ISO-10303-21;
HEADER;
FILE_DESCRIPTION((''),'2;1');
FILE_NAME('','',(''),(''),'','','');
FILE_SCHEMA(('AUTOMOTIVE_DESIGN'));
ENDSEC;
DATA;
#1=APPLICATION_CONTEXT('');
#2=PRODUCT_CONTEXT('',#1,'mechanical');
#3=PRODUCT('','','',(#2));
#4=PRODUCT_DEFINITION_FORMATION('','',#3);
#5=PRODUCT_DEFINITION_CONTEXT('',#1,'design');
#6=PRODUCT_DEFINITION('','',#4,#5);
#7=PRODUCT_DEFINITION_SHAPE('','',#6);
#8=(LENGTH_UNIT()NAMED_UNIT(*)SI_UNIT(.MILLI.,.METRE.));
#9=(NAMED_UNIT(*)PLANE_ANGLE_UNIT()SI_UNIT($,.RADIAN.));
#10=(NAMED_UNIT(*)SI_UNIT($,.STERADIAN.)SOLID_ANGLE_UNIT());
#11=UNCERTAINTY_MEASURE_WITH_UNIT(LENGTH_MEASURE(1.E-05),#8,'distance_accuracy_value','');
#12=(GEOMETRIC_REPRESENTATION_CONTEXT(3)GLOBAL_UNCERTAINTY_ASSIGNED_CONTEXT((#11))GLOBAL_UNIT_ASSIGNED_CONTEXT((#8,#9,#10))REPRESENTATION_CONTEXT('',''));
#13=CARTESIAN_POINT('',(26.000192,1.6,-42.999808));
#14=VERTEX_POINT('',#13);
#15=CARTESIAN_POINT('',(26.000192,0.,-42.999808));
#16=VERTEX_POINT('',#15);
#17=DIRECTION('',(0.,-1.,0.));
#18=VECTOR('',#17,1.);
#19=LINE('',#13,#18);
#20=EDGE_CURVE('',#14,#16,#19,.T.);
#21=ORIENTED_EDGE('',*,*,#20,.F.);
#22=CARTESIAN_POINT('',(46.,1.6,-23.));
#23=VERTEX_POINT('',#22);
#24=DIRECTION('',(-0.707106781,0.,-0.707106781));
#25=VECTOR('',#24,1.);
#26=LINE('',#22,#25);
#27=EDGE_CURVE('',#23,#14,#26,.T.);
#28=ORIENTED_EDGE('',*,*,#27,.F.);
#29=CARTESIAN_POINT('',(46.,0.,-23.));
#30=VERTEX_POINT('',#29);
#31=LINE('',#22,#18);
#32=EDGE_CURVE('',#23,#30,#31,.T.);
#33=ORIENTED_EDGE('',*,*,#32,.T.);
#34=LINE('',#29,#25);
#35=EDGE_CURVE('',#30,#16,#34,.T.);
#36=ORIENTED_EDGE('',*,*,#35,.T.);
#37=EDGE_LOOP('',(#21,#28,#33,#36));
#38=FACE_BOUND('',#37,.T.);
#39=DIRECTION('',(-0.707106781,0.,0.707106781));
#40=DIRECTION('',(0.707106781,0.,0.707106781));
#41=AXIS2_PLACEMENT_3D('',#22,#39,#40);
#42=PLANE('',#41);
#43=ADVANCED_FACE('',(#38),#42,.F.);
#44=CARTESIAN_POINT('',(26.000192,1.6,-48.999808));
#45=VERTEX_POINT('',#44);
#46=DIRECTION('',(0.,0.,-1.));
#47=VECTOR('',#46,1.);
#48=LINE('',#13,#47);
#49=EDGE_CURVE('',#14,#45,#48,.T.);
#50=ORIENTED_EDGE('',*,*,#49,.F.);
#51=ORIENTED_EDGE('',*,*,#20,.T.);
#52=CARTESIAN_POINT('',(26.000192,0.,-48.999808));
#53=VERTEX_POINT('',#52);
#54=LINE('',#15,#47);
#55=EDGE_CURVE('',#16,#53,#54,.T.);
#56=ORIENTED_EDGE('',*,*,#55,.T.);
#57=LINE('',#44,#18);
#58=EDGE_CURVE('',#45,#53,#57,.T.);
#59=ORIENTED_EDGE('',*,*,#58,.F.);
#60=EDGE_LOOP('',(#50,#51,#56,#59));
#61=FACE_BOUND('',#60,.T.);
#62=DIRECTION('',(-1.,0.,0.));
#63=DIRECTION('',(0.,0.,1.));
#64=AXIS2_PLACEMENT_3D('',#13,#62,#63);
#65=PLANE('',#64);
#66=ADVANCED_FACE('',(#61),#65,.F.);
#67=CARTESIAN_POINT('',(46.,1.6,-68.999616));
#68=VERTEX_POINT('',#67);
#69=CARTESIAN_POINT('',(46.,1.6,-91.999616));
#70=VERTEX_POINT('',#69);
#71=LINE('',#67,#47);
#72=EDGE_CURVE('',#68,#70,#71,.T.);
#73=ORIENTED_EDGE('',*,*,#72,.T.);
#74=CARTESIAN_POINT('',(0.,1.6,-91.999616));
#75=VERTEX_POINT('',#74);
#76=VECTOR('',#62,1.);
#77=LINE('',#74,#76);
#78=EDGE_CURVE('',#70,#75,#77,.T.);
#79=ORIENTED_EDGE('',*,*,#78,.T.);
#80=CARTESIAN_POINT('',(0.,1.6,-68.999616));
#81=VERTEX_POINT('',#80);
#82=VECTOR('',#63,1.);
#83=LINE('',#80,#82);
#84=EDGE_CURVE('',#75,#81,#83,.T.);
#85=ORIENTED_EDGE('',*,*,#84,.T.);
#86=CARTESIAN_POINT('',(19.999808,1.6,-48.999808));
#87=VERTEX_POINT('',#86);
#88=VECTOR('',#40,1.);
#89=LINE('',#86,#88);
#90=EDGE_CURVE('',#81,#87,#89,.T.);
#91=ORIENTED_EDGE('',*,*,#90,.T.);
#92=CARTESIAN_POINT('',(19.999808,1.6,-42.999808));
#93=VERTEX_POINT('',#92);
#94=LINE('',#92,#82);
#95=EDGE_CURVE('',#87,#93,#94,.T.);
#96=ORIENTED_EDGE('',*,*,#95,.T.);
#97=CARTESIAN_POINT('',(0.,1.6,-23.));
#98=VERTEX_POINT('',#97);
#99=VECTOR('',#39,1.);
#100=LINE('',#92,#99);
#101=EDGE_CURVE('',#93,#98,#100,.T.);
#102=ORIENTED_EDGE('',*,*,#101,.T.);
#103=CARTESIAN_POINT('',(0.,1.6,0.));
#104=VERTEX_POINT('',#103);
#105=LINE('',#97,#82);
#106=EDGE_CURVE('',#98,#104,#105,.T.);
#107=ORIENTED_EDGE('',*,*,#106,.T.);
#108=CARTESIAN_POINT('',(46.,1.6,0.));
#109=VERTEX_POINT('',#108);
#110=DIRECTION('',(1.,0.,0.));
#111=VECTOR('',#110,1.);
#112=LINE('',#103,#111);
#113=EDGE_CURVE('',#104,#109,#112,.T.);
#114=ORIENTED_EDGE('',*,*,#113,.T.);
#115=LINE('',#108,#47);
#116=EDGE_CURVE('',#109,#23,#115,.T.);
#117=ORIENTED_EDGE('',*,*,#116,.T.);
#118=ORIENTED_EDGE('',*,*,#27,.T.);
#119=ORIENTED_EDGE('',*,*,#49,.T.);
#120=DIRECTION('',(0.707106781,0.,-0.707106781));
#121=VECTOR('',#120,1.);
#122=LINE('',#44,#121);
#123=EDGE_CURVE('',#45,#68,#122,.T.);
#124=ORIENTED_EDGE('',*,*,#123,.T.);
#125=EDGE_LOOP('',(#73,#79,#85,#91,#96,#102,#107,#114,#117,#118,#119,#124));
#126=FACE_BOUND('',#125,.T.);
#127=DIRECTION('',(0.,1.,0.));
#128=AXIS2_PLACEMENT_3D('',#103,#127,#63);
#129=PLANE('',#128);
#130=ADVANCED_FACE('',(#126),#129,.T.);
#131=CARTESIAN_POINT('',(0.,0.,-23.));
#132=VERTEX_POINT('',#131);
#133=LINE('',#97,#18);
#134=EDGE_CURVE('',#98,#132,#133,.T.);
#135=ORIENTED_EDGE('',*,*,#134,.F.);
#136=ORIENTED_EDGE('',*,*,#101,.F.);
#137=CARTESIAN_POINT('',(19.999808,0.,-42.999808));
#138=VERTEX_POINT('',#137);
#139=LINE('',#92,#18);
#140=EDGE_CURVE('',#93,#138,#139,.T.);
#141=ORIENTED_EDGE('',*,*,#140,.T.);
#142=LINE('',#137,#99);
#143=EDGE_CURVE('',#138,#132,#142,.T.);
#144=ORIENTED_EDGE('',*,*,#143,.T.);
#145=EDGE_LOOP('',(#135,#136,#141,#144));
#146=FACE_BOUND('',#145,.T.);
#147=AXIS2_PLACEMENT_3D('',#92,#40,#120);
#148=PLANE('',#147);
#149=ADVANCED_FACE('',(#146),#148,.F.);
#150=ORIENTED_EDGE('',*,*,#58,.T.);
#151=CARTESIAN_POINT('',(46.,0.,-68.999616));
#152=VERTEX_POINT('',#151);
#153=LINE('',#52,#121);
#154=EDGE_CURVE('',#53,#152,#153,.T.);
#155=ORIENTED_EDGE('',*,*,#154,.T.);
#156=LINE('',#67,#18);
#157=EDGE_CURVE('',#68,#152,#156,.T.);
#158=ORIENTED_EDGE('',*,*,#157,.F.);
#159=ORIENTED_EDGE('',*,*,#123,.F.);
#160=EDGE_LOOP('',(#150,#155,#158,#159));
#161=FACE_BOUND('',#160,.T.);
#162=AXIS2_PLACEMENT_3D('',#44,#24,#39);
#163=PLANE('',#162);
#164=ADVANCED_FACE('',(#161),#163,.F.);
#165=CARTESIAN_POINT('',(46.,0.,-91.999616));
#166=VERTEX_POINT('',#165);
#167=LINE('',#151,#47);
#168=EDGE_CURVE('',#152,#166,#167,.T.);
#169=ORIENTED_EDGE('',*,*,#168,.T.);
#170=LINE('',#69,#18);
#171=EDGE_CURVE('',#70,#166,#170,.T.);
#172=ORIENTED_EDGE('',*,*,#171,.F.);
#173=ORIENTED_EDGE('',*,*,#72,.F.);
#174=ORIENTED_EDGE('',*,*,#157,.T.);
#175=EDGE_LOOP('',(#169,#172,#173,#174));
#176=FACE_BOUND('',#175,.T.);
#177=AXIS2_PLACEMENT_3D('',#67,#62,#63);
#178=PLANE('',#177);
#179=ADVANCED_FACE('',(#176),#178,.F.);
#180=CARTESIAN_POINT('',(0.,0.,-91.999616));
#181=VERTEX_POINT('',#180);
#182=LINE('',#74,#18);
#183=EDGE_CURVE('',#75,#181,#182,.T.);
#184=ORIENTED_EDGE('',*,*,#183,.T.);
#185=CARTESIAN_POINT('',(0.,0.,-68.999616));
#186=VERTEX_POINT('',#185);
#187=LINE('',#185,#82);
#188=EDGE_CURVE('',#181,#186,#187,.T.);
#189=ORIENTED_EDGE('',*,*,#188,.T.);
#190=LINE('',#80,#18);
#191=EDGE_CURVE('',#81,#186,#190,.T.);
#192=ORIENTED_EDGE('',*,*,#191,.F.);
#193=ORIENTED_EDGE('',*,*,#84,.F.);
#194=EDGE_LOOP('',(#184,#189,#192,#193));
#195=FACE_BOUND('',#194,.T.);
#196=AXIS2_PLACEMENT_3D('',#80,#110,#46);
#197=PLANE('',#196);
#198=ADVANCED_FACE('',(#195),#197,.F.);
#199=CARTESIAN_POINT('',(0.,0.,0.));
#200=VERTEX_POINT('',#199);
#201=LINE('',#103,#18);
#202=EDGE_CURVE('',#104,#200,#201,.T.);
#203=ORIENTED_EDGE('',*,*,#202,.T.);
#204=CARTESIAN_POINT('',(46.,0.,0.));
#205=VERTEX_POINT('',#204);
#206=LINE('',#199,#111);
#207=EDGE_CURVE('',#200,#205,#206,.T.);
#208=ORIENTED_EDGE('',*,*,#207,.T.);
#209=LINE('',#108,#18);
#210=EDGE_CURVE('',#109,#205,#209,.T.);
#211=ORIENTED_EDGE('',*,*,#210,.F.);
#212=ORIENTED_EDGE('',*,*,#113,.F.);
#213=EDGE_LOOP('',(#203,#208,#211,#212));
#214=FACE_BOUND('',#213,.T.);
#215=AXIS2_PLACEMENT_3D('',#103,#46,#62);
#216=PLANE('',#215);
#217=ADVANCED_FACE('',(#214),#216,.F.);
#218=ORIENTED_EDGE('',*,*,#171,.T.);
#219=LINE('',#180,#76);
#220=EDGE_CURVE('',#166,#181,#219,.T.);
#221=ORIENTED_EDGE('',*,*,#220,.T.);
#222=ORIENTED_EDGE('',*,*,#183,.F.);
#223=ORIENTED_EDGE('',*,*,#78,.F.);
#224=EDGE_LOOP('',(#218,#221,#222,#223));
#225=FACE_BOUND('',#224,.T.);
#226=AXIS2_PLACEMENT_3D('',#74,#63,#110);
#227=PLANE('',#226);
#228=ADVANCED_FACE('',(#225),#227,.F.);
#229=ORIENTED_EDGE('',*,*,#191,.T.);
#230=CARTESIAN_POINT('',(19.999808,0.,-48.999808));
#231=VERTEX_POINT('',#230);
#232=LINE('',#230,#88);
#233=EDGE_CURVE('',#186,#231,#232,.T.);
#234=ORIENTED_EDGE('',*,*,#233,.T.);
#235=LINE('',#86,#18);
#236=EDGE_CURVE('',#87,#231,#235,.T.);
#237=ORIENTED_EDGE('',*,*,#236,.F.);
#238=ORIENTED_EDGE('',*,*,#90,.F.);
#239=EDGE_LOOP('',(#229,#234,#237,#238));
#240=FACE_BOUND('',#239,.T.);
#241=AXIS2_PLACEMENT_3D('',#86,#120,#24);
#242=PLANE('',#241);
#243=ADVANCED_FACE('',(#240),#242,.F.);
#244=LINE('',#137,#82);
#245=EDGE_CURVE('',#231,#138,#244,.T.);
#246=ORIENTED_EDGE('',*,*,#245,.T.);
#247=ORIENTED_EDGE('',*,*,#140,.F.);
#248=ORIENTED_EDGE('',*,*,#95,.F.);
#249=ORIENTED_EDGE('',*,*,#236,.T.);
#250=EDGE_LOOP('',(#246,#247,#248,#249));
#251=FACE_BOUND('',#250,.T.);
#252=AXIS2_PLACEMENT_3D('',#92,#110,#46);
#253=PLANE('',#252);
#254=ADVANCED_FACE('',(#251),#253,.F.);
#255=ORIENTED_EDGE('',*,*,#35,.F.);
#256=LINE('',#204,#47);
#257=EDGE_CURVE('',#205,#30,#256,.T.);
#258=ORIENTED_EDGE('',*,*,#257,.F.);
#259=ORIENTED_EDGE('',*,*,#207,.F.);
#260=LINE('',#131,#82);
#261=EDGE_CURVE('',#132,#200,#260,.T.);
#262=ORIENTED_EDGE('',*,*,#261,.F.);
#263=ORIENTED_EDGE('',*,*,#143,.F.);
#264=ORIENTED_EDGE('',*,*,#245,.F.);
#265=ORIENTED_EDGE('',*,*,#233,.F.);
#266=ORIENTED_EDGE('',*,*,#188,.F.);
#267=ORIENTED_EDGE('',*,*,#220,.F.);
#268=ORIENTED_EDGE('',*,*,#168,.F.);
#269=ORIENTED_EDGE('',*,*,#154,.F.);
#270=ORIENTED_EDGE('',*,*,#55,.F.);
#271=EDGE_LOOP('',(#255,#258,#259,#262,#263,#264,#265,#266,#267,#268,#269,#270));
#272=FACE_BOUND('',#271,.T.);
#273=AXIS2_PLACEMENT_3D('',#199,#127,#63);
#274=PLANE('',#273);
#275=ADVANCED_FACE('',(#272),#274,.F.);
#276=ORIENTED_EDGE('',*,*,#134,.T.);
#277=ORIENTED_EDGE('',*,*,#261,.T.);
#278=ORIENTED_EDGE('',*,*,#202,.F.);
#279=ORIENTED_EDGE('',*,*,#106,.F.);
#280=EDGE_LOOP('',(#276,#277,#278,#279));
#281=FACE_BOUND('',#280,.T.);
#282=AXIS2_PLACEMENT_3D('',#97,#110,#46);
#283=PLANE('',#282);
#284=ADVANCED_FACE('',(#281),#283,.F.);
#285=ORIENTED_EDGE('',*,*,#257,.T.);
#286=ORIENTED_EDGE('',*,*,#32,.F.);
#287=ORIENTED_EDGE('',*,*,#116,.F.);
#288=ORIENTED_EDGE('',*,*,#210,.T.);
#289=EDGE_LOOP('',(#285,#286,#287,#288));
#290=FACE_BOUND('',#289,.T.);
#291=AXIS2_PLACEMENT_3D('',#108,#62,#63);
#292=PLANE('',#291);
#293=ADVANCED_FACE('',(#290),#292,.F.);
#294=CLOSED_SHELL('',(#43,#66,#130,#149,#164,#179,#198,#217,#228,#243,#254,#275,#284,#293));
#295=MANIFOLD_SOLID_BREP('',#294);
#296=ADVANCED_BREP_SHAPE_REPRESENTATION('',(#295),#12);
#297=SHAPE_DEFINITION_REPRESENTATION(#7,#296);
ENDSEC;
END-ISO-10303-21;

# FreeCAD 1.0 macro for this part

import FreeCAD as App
import Part
import Sketcher


def add_polygon(sketch, points):
    """Adds a closed chain of lines whose ends are joined by coincident constraints."""
    first, n = sketch.GeometryCount, len(points)
    for a, b in zip(points, points[1:] + points[:1]):
        sketch.addGeometry(Part.LineSegment(App.Vector(*a, 0), App.Vector(*b, 0)), False)
    for i in range(n):
        sketch.addConstraint(Sketcher.Constraint("Coincident", first + i, 2, first + (i + 1) % n, 1))

doc = App.newDocument("Part")
body = doc.addObject("PartDesign::Body", "Body")

sketch1 = body.newObject("Sketcher::SketchObject", "Sketch")
sketch1.AttachmentSupport = (doc.getObject("XZ_Plane"), [""])
sketch1.MapMode = "FlatFace"
add_polygon(sketch1, [(0, 0), (46, 0), (46, -23), (26, -43), (26, -49), (46, -69), (46, -92), (0, -92), (0, -69), (20, -49), (20, -43), (0, -23)])
sketch1.addConstraint([
    Sketcher.Constraint("Horizontal", 0),
    Sketcher.Constraint("Vertical", 1),
    Sketcher.Constraint("Vertical", 3),
    Sketcher.Constraint("Vertical", 5),
    Sketcher.Constraint("Horizontal", 6),
    Sketcher.Constraint("Vertical", 7),
    Sketcher.Constraint("Vertical", 9),
    Sketcher.Constraint("Vertical", 11),
    Sketcher.Constraint("Coincident", 11, 2, -1, 1),
    Sketcher.Constraint("PointOnObject", 6, 2, -2),
    Sketcher.Constraint("Perpendicular", 2, 4),
    Sketcher.Constraint("Perpendicular", 4, 8),
    Sketcher.Constraint("Perpendicular", 8, 10),
    Sketcher.Constraint("Horizontal", 4, 2, 7, 2),
    Sketcher.Constraint("Horizontal", 3, 2, 8, 2),
    Sketcher.Constraint("Horizontal", 2, 2, 9, 2),
    Sketcher.Constraint("Horizontal", 1, 2, 10, 2),
    Sketcher.Constraint("Vertical", 1, 2, 4, 2),
    Sketcher.Constraint("Equal", 1, 5),
    Sketcher.Constraint("DistanceX", 0, 1, 0, 2, 46.0),
    Sketcher.Constraint("DistanceY", 1, 2, 1, 1, 23.0),
    Sketcher.Constraint("DistanceY", 3, 2, 3, 1, 6.0),
    Sketcher.Constraint("Distance", 2, 28.284),
])
pad1 = body.newObject("PartDesign::Pad", "Pad")
pad1.Profile = sketch1
pad1.Length = 1.6
pad1.Reversed = True

doc.recompute()
